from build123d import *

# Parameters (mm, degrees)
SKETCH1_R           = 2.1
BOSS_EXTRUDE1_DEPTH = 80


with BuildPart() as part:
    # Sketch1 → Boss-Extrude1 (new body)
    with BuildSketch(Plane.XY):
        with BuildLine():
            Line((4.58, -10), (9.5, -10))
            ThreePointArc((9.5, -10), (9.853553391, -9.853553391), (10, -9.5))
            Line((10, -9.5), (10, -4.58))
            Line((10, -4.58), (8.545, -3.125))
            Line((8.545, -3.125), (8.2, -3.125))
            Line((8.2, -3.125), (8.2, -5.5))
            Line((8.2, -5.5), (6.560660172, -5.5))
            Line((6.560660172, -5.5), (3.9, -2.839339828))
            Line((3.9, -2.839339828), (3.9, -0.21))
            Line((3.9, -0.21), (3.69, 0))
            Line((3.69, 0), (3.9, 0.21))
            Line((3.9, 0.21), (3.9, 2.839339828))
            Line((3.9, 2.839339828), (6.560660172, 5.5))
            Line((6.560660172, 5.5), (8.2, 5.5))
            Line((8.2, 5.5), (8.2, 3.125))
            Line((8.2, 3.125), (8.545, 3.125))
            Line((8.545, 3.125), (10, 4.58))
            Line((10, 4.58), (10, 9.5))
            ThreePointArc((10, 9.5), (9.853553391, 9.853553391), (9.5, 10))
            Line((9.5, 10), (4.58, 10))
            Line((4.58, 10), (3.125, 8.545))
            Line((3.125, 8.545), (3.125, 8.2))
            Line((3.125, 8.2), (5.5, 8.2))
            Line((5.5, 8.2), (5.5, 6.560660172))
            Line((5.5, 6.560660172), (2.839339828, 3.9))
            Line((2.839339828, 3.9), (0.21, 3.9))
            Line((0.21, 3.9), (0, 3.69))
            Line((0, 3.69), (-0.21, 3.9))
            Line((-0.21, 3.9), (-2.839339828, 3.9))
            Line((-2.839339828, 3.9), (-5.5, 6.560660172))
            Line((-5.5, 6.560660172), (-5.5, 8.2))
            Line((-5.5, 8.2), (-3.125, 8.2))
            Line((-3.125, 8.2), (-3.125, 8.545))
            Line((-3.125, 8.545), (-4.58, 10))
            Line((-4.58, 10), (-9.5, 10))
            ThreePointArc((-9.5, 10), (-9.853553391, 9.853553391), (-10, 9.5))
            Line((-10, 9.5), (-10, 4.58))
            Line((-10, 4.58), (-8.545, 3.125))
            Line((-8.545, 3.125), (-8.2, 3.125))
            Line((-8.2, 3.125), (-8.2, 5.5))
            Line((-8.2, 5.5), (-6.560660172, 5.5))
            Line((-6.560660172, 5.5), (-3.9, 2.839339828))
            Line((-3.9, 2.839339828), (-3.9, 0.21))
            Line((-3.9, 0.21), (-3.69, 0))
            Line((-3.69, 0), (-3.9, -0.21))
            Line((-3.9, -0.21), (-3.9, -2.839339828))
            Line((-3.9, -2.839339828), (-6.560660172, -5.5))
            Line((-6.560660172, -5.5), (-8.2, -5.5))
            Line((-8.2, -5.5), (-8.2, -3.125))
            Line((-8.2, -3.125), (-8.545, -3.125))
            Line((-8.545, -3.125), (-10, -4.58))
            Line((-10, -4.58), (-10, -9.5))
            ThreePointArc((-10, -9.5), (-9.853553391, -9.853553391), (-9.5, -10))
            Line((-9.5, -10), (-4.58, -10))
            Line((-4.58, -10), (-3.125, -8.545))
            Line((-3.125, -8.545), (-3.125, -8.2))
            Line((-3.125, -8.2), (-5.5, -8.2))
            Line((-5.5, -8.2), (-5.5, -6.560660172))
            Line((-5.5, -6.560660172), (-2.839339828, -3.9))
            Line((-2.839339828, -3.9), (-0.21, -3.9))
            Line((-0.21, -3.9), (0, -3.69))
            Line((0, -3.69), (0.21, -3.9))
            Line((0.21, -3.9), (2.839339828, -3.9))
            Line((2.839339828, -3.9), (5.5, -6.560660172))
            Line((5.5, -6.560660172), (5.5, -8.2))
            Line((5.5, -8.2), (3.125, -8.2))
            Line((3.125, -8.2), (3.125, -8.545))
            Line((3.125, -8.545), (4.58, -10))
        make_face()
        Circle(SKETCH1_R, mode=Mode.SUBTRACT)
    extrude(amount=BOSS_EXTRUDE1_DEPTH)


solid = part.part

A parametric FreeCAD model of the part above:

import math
import FreeCAD as App
import Part
import Sketcher

doc = App.newDocument("Part")
body = doc.addObject("PartDesign::Body", "Body")

# Sketch on XY plane
sketch1 = body.newObject("Sketcher::SketchObject", "Sketch")
sketch1.AttachmentSupport = (doc.getObject("XY_Plane"), [""])
sketch1.MapMode = "FlatFace"
sketch1.addGeometry([
    Part.LineSegment(App.Vector(4.58, -10, 0), App.Vector(9.5, -10, 0)),  # 0
    Part.ArcOfCircle(Part.Circle(App.Vector(9.5, -9.5, 0), App.Vector(0, 0, 1), 0.5), math.radians(-90), math.radians(0)),  # 1
    Part.LineSegment(App.Vector(10, -9.5, 0), App.Vector(10, -4.58, 0)),  # 2
    Part.LineSegment(App.Vector(10, -4.58, 0), App.Vector(8.54, -3.12, 0)),  # 3
    Part.LineSegment(App.Vector(8.54, -3.12, 0), App.Vector(8.2, -3.12, 0)),  # 4
    Part.LineSegment(App.Vector(8.2, -3.12, 0), App.Vector(8.2, -5.5, 0)),  # 5
    Part.LineSegment(App.Vector(8.2, -5.5, 0), App.Vector(6.56, -5.5, 0)),  # 6
    Part.LineSegment(App.Vector(6.56, -5.5, 0), App.Vector(3.9, -2.84, 0)),  # 7
    Part.LineSegment(App.Vector(3.9, -2.84, 0), App.Vector(3.9, -0.21, 0)),  # 8
    Part.LineSegment(App.Vector(3.9, -0.21, 0), App.Vector(3.69, 0, 0)),  # 9
    Part.LineSegment(App.Vector(3.69, 0, 0), App.Vector(3.9, 0.21, 0)),  # 10
    Part.LineSegment(App.Vector(3.9, 0.21, 0), App.Vector(3.9, 2.84, 0)),  # 11
    Part.LineSegment(App.Vector(3.9, 2.84, 0), App.Vector(6.56, 5.5, 0)),  # 12
    Part.LineSegment(App.Vector(6.56, 5.5, 0), App.Vector(8.2, 5.5, 0)),  # 13
    Part.LineSegment(App.Vector(8.2, 5.5, 0), App.Vector(8.2, 3.12, 0)),  # 14
    Part.LineSegment(App.Vector(8.2, 3.12, 0), App.Vector(8.54, 3.12, 0)),  # 15
    Part.LineSegment(App.Vector(8.54, 3.12, 0), App.Vector(10, 4.58, 0)),  # 16
    Part.LineSegment(App.Vector(10, 4.58, 0), App.Vector(10, 9.5, 0)),  # 17
    Part.ArcOfCircle(Part.Circle(App.Vector(9.5, 9.5, 0), App.Vector(0, 0, 1), 0.5), math.radians(0), math.radians(90)),  # 18
    Part.LineSegment(App.Vector(9.5, 10, 0), App.Vector(4.58, 10, 0)),  # 19
    Part.LineSegment(App.Vector(4.58, 10, 0), App.Vector(3.12, 8.54, 0)),  # 20
    Part.LineSegment(App.Vector(3.12, 8.54, 0), App.Vector(3.12, 8.2, 0)),  # 21
    Part.LineSegment(App.Vector(3.12, 8.2, 0), App.Vector(5.5, 8.2, 0)),  # 22
    Part.LineSegment(App.Vector(5.5, 8.2, 0), App.Vector(5.5, 6.56, 0)),  # 23
    Part.LineSegment(App.Vector(5.5, 6.56, 0), App.Vector(2.84, 3.9, 0)),  # 24
    Part.LineSegment(App.Vector(2.84, 3.9, 0), App.Vector(0.21, 3.9, 0)),  # 25
    Part.LineSegment(App.Vector(0.21, 3.9, 0), App.Vector(0, 3.69, 0)),  # 26
    Part.LineSegment(App.Vector(0, 3.69, 0), App.Vector(-0.21, 3.9, 0)),  # 27
    Part.LineSegment(App.Vector(-0.21, 3.9, 0), App.Vector(-2.84, 3.9, 0)),  # 28
    Part.LineSegment(App.Vector(-2.84, 3.9, 0), App.Vector(-5.5, 6.56, 0)),  # 29
    Part.LineSegment(App.Vector(-5.5, 6.56, 0), App.Vector(-5.5, 8.2, 0)),  # 30
    Part.LineSegment(App.Vector(-5.5, 8.2, 0), App.Vector(-3.12, 8.2, 0)),  # 31
    Part.LineSegment(App.Vector(-3.12, 8.2, 0), App.Vector(-3.12, 8.54, 0)),  # 32
    Part.LineSegment(App.Vector(-3.12, 8.54, 0), App.Vector(-4.58, 10, 0)),  # 33
    Part.LineSegment(App.Vector(-4.58, 10, 0), App.Vector(-9.5, 10, 0)),  # 34
    Part.ArcOfCircle(Part.Circle(App.Vector(-9.5, 9.5, 0), App.Vector(0, 0, 1), 0.5), math.radians(90), math.radians(180)),  # 35
    Part.LineSegment(App.Vector(-10, 9.5, 0), App.Vector(-10, 4.58, 0)),  # 36
    Part.LineSegment(App.Vector(-10, 4.58, 0), App.Vector(-8.54, 3.12, 0)),  # 37
    Part.LineSegment(App.Vector(-8.54, 3.12, 0), App.Vector(-8.2, 3.12, 0)),  # 38
    Part.LineSegment(App.Vector(-8.2, 3.12, 0), App.Vector(-8.2, 5.5, 0)),  # 39
    Part.LineSegment(App.Vector(-8.2, 5.5, 0), App.Vector(-6.56, 5.5, 0)),  # 40
    Part.LineSegment(App.Vector(-6.56, 5.5, 0), App.Vector(-3.9, 2.84, 0)),  # 41
    Part.LineSegment(App.Vector(-3.9, 2.84, 0), App.Vector(-3.9, 0.21, 0)),  # 42
    Part.LineSegment(App.Vector(-3.9, 0.21, 0), App.Vector(-3.69, 0, 0)),  # 43
    Part.LineSegment(App.Vector(-3.69, 0, 0), App.Vector(-3.9, -0.21, 0)),  # 44
    Part.LineSegment(App.Vector(-3.9, -0.21, 0), App.Vector(-3.9, -2.84, 0)),  # 45
    Part.LineSegment(App.Vector(-3.9, -2.84, 0), App.Vector(-6.56, -5.5, 0)),  # 46
    Part.LineSegment(App.Vector(-6.56, -5.5, 0), App.Vector(-8.2, -5.5, 0)),  # 47
    Part.LineSegment(App.Vector(-8.2, -5.5, 0), App.Vector(-8.2, -3.12, 0)),  # 48
    Part.LineSegment(App.Vector(-8.2, -3.12, 0), App.Vector(-8.54, -3.12, 0)),  # 49
    Part.LineSegment(App.Vector(-8.54, -3.12, 0), App.Vector(-10, -4.58, 0)),  # 50
    Part.LineSegment(App.Vector(-10, -4.58, 0), App.Vector(-10, -9.5, 0)),  # 51
    Part.ArcOfCircle(Part.Circle(App.Vector(-9.5, -9.5, 0), App.Vector(0, 0, 1), 0.5), math.radians(180), math.radians(270)),  # 52
    Part.LineSegment(App.Vector(-9.5, -10, 0), App.Vector(-4.58, -10, 0)),  # 53
    Part.LineSegment(App.Vector(-4.58, -10, 0), App.Vector(-3.12, -8.54, 0)),  # 54
    Part.LineSegment(App.Vector(-3.12, -8.54, 0), App.Vector(-3.12, -8.2, 0)),  # 55
    Part.LineSegment(App.Vector(-3.12, -8.2, 0), App.Vector(-5.5, -8.2, 0)),  # 56
    Part.LineSegment(App.Vector(-5.5, -8.2, 0), App.Vector(-5.5, -6.56, 0)),  # 57
    Part.LineSegment(App.Vector(-5.5, -6.56, 0), App.Vector(-2.84, -3.9, 0)),  # 58
    Part.LineSegment(App.Vector(-2.84, -3.9, 0), App.Vector(-0.21, -3.9, 0)),  # 59
    Part.LineSegment(App.Vector(-0.21, -3.9, 0), App.Vector(0, -3.69, 0)),  # 60
    Part.LineSegment(App.Vector(0, -3.69, 0), App.Vector(0.21, -3.9, 0)),  # 61
    Part.LineSegment(App.Vector(0.21, -3.9, 0), App.Vector(2.84, -3.9, 0)),  # 62
    Part.LineSegment(App.Vector(2.84, -3.9, 0), App.Vector(5.5, -6.56, 0)),  # 63
    Part.LineSegment(App.Vector(5.5, -6.56, 0), App.Vector(5.5, -8.2, 0)),  # 64
    Part.LineSegment(App.Vector(5.5, -8.2, 0), App.Vector(3.12, -8.2, 0)),  # 65
    Part.LineSegment(App.Vector(3.12, -8.2, 0), App.Vector(3.12, -8.54, 0)),  # 66
    Part.LineSegment(App.Vector(3.12, -8.54, 0), App.Vector(4.58, -10, 0)),  # 67
    Part.Circle(App.Vector(0, 0, 0), App.Vector(0, 0, 1), 2.1),  # 68
], False)
sketch1.addConstraint([
    Sketcher.Constraint("Tangent", 0, 2, 1, 1),
    Sketcher.Constraint("Tangent", 1, 2, 2, 1),
    Sketcher.Constraint("Coincident", 2, 2, 3, 1),
    Sketcher.Constraint("Coincident", 3, 2, 4, 1),
    Sketcher.Constraint("Coincident", 4, 2, 5, 1),
    Sketcher.Constraint("Coincident", 5, 2, 6, 1),
    Sketcher.Constraint("Coincident", 6, 2, 7, 1),
    Sketcher.Constraint("Coincident", 7, 2, 8, 1),
    Sketcher.Constraint("Coincident", 8, 2, 9, 1),
    Sketcher.Constraint("Coincident", 9, 2, 10, 1),
    Sketcher.Constraint("Coincident", 10, 2, 11, 1),
    Sketcher.Constraint("Coincident", 11, 2, 12, 1),
    Sketcher.Constraint("Coincident", 12, 2, 13, 1),
    Sketcher.Constraint("Coincident", 13, 2, 14, 1),
    Sketcher.Constraint("Coincident", 14, 2, 15, 1),
    Sketcher.Constraint("Coincident", 15, 2, 16, 1),
    Sketcher.Constraint("Coincident", 16, 2, 17, 1),
    Sketcher.Constraint("Tangent", 17, 2, 18, 1),
    Sketcher.Constraint("Tangent", 18, 2, 19, 1),
    Sketcher.Constraint("Coincident", 19, 2, 20, 1),
    Sketcher.Constraint("Coincident", 20, 2, 21, 1),
    Sketcher.Constraint("Coincident", 21, 2, 22, 1),
    Sketcher.Constraint("Coincident", 22, 2, 23, 1),
    Sketcher.Constraint("Coincident", 23, 2, 24, 1),
    Sketcher.Constraint("Coincident", 24, 2, 25, 1),
    Sketcher.Constraint("Coincident", 25, 2, 26, 1),
    Sketcher.Constraint("Coincident", 26, 2, 27, 1),
    Sketcher.Constraint("Coincident", 27, 2, 28, 1),
    Sketcher.Constraint("Coincident", 28, 2, 29, 1),
    Sketcher.Constraint("Coincident", 29, 2, 30, 1),
    Sketcher.Constraint("Coincident", 30, 2, 31, 1),
    Sketcher.Constraint("Coincident", 31, 2, 32, 1),
    Sketcher.Constraint("Coincident", 32, 2, 33, 1),
    Sketcher.Constraint("Coincident", 33, 2, 34, 1),
    Sketcher.Constraint("Tangent", 34, 2, 35, 1),
    Sketcher.Constraint("Tangent", 35, 2, 36, 1),
    Sketcher.Constraint("Coincident", 36, 2, 37, 1),
    Sketcher.Constraint("Coincident", 37, 2, 38, 1),
    Sketcher.Constraint("Coincident", 38, 2, 39, 1),
    Sketcher.Constraint("Coincident", 39, 2, 40, 1),
    Sketcher.Constraint("Coincident", 40, 2, 41, 1),
    Sketcher.Constraint("Coincident", 41, 2, 42, 1),
    Sketcher.Constraint("Coincident", 42, 2, 43, 1),
    Sketcher.Constraint("Coincident", 43, 2, 44, 1),
    Sketcher.Constraint("Coincident", 44, 2, 45, 1),
    Sketcher.Constraint("Coincident", 45, 2, 46, 1),
    Sketcher.Constraint("Coincident", 46, 2, 47, 1),
    Sketcher.Constraint("Coincident", 47, 2, 48, 1),
    Sketcher.Constraint("Coincident", 48, 2, 49, 1),
    Sketcher.Constraint("Coincident", 49, 2, 50, 1),
    Sketcher.Constraint("Coincident", 50, 2, 51, 1),
    Sketcher.Constraint("Tangent", 51, 2, 52, 1),
    Sketcher.Constraint("Tangent", 52, 2, 53, 1),
    Sketcher.Constraint("Coincident", 53, 2, 54, 1),
    Sketcher.Constraint("Coincident", 54, 2, 55, 1),
    Sketcher.Constraint("Coincident", 55, 2, 56, 1),
    Sketcher.Constraint("Coincident", 56, 2, 57, 1),
    Sketcher.Constraint("Coincident", 57, 2, 58, 1),
    Sketcher.Constraint("Coincident", 58, 2, 59, 1),
    Sketcher.Constraint("Coincident", 59, 2, 60, 1),
    Sketcher.Constraint("Coincident", 60, 2, 61, 1),
    Sketcher.Constraint("Coincident", 61, 2, 62, 1),
    Sketcher.Constraint("Coincident", 62, 2, 63, 1),
    Sketcher.Constraint("Coincident", 63, 2, 64, 1),
    Sketcher.Constraint("Coincident", 64, 2, 65, 1),
    Sketcher.Constraint("Coincident", 65, 2, 66, 1),
    Sketcher.Constraint("Coincident", 66, 2, 67, 1),
    Sketcher.Constraint("Coincident", 67, 2, 0, 1),
    Sketcher.Constraint("Horizontal", 0),
    Sketcher.Constraint("Vertical", 2),
    Sketcher.Constraint("Horizontal", 4),
    Sketcher.Constraint("Vertical", 5),
    Sketcher.Constraint("Horizontal", 6),
    Sketcher.Constraint("Vertical", 8),
    Sketcher.Constraint("Vertical", 11),
    Sketcher.Constraint("Horizontal", 13),
    Sketcher.Constraint("Vertical", 14),
    Sketcher.Constraint("Horizontal", 15),
    Sketcher.Constraint("Vertical", 17),
    Sketcher.Constraint("Horizontal", 19),
    Sketcher.Constraint("Vertical", 21),
    Sketcher.Constraint("Horizontal", 22),
    Sketcher.Constraint("Vertical", 23),
    Sketcher.Constraint("Horizontal", 25),
    Sketcher.Constraint("Horizontal", 28),
    Sketcher.Constraint("Vertical", 30),
    Sketcher.Constraint("Horizontal", 31),
    Sketcher.Constraint("Vertical", 32),
    Sketcher.Constraint("Horizontal", 34),
    Sketcher.Constraint("Vertical", 36),
    Sketcher.Constraint("Horizontal", 38),
    Sketcher.Constraint("Vertical", 39),
    Sketcher.Constraint("Horizontal", 40),
    Sketcher.Constraint("Vertical", 42),
    Sketcher.Constraint("Vertical", 45),
    Sketcher.Constraint("Horizontal", 47),
    Sketcher.Constraint("Vertical", 48),
    Sketcher.Constraint("Horizontal", 49),
    Sketcher.Constraint("Vertical", 51),
    Sketcher.Constraint("Horizontal", 53),
    Sketcher.Constraint("Vertical", 55),
    Sketcher.Constraint("Horizontal", 56),
    Sketcher.Constraint("Vertical", 57),
    Sketcher.Constraint("Horizontal", 59),
    Sketcher.Constraint("Horizontal", 62),
    Sketcher.Constraint("Vertical", 64),
    Sketcher.Constraint("Horizontal", 65),
    Sketcher.Constraint("Vertical", 66),
    Sketcher.Constraint("Coincident", 68, 3, -1, 1),
    Sketcher.Constraint("Equal", 1, 18),
    Sketcher.Constraint("Equal", 18, 35),
    Sketcher.Constraint("Equal", 35, 52),
    Sketcher.Constraint("Symmetric", 1, 3, 35, 3, -1, 1),
    Sketcher.Constraint("Symmetric", 18, 3, 52, 3, -1, 1),
    Sketcher.Constraint("Symmetric", 3, 2, 37, 2, -1, 1),
    Sketcher.Constraint("Symmetric", 5, 2, 39, 2, -1, 1),
    Sketcher.Constraint("Symmetric", 7, 2, 41, 2, -1, 1),
    Sketcher.Constraint("Symmetric", 9, 2, 43, 2, -1, 1),
    Sketcher.Constraint("Symmetric", 10, 2, 44, 2, -1, 1),
    Sketcher.Constraint("Symmetric", 12, 2, 46, 2, -1, 1),
    Sketcher.Constraint("Symmetric", 14, 2, 48, 2, -1, 1),
    Sketcher.Constraint("Symmetric", 20, 2, 54, 2, -1, 1),
    Sketcher.Constraint("Symmetric", 22, 2, 56, 2, -1, 1),
    Sketcher.Constraint("Symmetric", 24, 2, 58, 2, -1, 1),
    Sketcher.Constraint("Symmetric", 26, 2, 60, 2, -1, 1),
    Sketcher.Constraint("Symmetric", 27, 2, 61, 2, -1, 1),
    Sketcher.Constraint("Symmetric", 29, 2, 63, 2, -1, 1),
    Sketcher.Constraint("Symmetric", 31, 2, 65, 2, -1, 1),
    Sketcher.Constraint("Symmetric", 18, 3, 35, 3, -2),
    Sketcher.Constraint("Symmetric", 25, 2, 27, 2, -2),
    Sketcher.Constraint("Symmetric", 23, 2, 29, 2, -2),
    Sketcher.Constraint("Symmetric", 21, 2, 31, 2, -2),
    Sketcher.Constraint("Symmetric", 15, 2, 37, 2, -2),
    Sketcher.Constraint("Symmetric", 13, 2, 39, 2, -2),
    Sketcher.Constraint("Symmetric", 11, 2, 41, 2, -2),
    Sketcher.Constraint("PointOnObject", 9, 2, -1),
    Sketcher.Constraint("PointOnObject", 26, 2, -2),
    Sketcher.Constraint("Parallel", 3, 7),
    Sketcher.Constraint("Parallel", 7, 9),
    Sketcher.Constraint("Perpendicular", 9, 10),
    Sketcher.Constraint("Parallel", 10, 12),
    Sketcher.Constraint("Parallel", 12, 16),
    Sketcher.Constraint("Parallel", 16, 20),
    Sketcher.Constraint("Parallel", 20, 24),
    Sketcher.Constraint("Parallel", 24, 26),
    Sketcher.Constraint("Perpendicular", 26, 27),
    Sketcher.Constraint("Parallel", 27, 29),
    Sketcher.Constraint("Parallel", 29, 33),
    Sketcher.Constraint("Parallel", 33, 37),
    Sketcher.Constraint("Parallel", 37, 41),
    Sketcher.Constraint("Parallel", 41, 43),
    Sketcher.Constraint("Parallel", 44, 46),
    Sketcher.Constraint("Parallel", 46, 50),
    Sketcher.Constraint("Parallel", 50, 54),
    Sketcher.Constraint("Parallel", 54, 58),
    Sketcher.Constraint("Parallel", 58, 60),
    Sketcher.Constraint("Parallel", 61, 63),
    Sketcher.Constraint("Parallel", 63, 67),
    Sketcher.Constraint("Horizontal", 20, 2, 32, 2),
    Sketcher.Constraint("Horizontal", 2, 2, 50, 2),
    Sketcher.Constraint("Horizontal", 54, 2, 66, 2),
    Sketcher.Constraint("Equal", 53, 2),
    Sketcher.Constraint("Equal", 65, 5),
    Sketcher.Constraint("Equal", 62, 8),
    Sketcher.Constraint("Equal", 49, 21),
    Sketcher.Constraint("Equal", 47, 23),
    Sketcher.Constraint("Equal", 16, 20),
    Sketcher.Constraint("Equal", 12, 24),
    Sketcher.Constraint("Equal", 10, 26),
    Sketcher.Constraint("Diameter", 68, 4.2),
    Sketcher.Constraint("Radius", 1, 0.5),
    Sketcher.Constraint("DistanceY", 0, 2, -1, 1, 10.0),
    Sketcher.Constraint("DistanceX", 0, 1, 0, 2, 4.92),
    Sketcher.Constraint("DistanceX", -1, 1, 4, 2, 8.2),
    Sketcher.Constraint("DistanceY", 5, 2, -1, 1, 5.5),
    Sketcher.Constraint("DistanceX", -1, 1, 7, 2, 3.9),
    Sketcher.Constraint("DistanceX", 4, 2, 4, 1, 0.345),
    Sketcher.Constraint("DistanceY", 8, 2, -1, 1, 0.21),
    Sketcher.Constraint("DistanceX", 6, 2, 6, 1, 1.63934),
])
pad1 = body.newObject("PartDesign::Pad", "Pad")
pad1.Profile = sketch1
pad1.Length = 80

doc.recompute()
